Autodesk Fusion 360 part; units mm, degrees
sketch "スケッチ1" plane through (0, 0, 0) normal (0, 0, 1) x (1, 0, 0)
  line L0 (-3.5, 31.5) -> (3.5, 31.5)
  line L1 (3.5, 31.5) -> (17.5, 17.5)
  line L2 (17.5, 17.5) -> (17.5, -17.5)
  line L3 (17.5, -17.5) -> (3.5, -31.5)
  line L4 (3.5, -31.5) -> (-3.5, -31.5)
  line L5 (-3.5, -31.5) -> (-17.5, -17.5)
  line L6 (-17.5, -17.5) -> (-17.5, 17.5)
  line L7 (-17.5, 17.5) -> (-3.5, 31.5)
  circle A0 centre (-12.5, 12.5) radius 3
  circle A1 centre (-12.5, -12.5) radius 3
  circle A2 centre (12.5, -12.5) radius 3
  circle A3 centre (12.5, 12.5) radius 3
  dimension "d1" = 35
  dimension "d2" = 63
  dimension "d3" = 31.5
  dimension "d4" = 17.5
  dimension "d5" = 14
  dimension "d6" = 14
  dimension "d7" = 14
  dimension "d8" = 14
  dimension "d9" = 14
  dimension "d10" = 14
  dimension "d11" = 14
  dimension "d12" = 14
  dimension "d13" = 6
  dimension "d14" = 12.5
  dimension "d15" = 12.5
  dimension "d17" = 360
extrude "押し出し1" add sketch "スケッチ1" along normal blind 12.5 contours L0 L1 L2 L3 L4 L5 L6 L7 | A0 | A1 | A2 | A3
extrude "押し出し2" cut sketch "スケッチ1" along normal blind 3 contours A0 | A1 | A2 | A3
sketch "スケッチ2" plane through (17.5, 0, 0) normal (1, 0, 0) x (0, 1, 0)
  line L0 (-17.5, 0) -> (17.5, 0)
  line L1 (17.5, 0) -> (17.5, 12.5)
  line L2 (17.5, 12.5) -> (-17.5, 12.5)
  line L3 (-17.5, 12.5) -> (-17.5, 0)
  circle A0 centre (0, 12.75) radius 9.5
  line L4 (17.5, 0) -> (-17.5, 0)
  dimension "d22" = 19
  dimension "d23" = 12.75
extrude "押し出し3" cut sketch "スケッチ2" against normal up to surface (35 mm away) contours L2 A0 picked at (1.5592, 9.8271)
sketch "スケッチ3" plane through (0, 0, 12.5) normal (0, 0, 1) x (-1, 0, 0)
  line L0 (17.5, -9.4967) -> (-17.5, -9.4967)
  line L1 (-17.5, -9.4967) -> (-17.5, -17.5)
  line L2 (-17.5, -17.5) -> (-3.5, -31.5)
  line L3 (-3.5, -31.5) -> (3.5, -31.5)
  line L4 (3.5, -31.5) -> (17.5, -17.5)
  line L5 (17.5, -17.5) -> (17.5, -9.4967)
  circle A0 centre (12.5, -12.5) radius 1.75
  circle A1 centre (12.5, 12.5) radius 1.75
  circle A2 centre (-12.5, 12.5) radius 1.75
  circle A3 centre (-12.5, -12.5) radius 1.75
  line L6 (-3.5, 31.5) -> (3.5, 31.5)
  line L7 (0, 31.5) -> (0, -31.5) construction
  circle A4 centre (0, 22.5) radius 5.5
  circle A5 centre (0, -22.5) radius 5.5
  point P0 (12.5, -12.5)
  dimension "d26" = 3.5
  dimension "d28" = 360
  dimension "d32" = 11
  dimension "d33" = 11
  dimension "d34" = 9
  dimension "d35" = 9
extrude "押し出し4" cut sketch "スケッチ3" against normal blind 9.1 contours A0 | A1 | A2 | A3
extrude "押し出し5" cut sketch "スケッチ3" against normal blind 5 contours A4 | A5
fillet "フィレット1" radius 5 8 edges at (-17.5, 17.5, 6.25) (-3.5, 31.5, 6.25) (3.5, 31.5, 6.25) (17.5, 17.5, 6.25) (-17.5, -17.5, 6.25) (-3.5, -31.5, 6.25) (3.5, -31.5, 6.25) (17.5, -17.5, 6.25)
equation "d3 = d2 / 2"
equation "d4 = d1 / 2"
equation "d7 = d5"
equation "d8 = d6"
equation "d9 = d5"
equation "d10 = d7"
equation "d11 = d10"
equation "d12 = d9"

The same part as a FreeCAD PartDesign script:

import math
import FreeCAD as App
import Part
import Sketcher
Q = App.Units.Quantity


def edges_at(feature, points):
    """Names of the edges that pass closest to the given points."""
    edges = feature.Shape.Edges
    near = lambda p: min(range(len(edges)), key=lambda i: edges[i].distToShape(Part.Vertex(*p))[0])
    return sorted({f"Edge{near(p) + 1}" for p in points})


def add_polygon(sketch, points):
    """Adds a closed chain of lines whose ends are joined by coincident constraints."""
    first, n = sketch.GeometryCount, len(points)
    for a, b in zip(points, points[1:] + points[:1]):
        sketch.addGeometry(Part.LineSegment(App.Vector(*a, 0), App.Vector(*b, 0)), False)
    for i in range(n):
        sketch.addConstraint(Sketcher.Constraint("Coincident", first + i, 2, first + (i + 1) % n, 1))

doc = App.newDocument("Part")
params = doc.addObject("Spreadsheet::Sheet", "Params")
for row, (alias, value) in enumerate([
    ("sketch1_height", "35 mm"),
    ("pad1_length", "12.5 mm"),
    ("sketch2_diameter", "6 mm"),
    ("pocket1_length", "3 mm"),
    ("sketch3_radius", "9.5 mm"),
    ("pocket2_length", "35 mm"),
    ("sketch4_diameter", "3.5 mm"),
    ("pocket3_length", "9.1 mm"),
    ("sketch5_diameter", "11 mm"),
    ("pocket4_length", "5 mm"),
    ("fillet_radius", "5 mm"),
], start=1):
    params.set(f"A{row}", alias)
    params.set(f"B{row}", "=" + value)
    params.setAlias(f"B{row}", alias)

body = doc.addObject("PartDesign::Body", "Body")

# Sketch on XY plane
sketch1 = doc.addObject("Sketcher::SketchObject", "Sketch")
body.addObject(sketch1)
sketch1.AttachmentSupport = (doc.XY_Plane, [""])
sketch1.MapMode = "FlatFace"
add_polygon(sketch1, [(4, 32), (-4, 32), (-18, 18), (-18, -18), (-4, -32), (4, -32), (18, -18), (18, 18)])  # lines 0-7
sketch1.addConstraint([
    Sketcher.Constraint("Horizontal", 0),
    Sketcher.Constraint("Vertical", 2),
    Sketcher.Constraint("Horizontal", 4),
    Sketcher.Constraint("Vertical", 6),
    Sketcher.Constraint("Symmetric", 0, 2, 4, 2, -1, 1),
    Sketcher.Constraint("Symmetric", 1, 2, 5, 2, -1, 1),
    Sketcher.Constraint("Perpendicular", 1, 3),
    Sketcher.Constraint("Perpendicular", 5, 7),
    Sketcher.Constraint("Horizontal", 2, 2, 5, 2),
    Sketcher.Constraint("Horizontal", 1, 2, 6, 2),
    Sketcher.Constraint("Vertical", 0, 2, 3, 2),
    Sketcher.Constraint("DistanceY", 2, 2, 2, 1, Q("35 mm")),
    Sketcher.Constraint("DistanceX", 1, 2, 0, 2, Q("14 mm")),
    Sketcher.Constraint("DistanceX", 2, 2, 5, 2, Q("35 mm")),
])
sketch1.setExpression("Constraints[19]", "Params.sketch1_height")
pad1 = doc.addObject("PartDesign::Pad", "Pad")
body.addObject(pad1)
pad1.Profile = sketch1
pad1.setExpression("Length", "Params.pad1_length")

# Sketch on XY plane
sketch2 = doc.addObject("Sketcher::SketchObject", "Sketch001")
body.addObject(sketch2)
sketch2.AttachmentSupport = (doc.XY_Plane, [""])
sketch2.MapMode = "FlatFace"
sketch2.addGeometry([
    Part.Circle(App.Vector(-12.5, 12.5, 0), App.Vector(0, 0, 1), 3),
    Part.Circle(App.Vector(-12.5, -12.5, 0), App.Vector(0, 0, 1), 3),
    Part.Circle(App.Vector(12.5, -12.5, 0), App.Vector(0, 0, 1), 3),
    Part.Circle(App.Vector(12.5, 12.5, 0), App.Vector(0, 0, 1), 3),
], False)
sketch2.addConstraint([
    Sketcher.Constraint("Equal", 0, 1),
    Sketcher.Constraint("Equal", 1, 2),
    Sketcher.Constraint("Equal", 2, 3),
    Sketcher.Constraint("Symmetric", 0, 3, 2, 3, -1, 1),
    Sketcher.Constraint("Symmetric", 1, 3, 3, 3, -1, 1),
    Sketcher.Constraint("Symmetric", 1, 3, 2, 3, -2),
    Sketcher.Constraint("Diameter", 0, Q("6 mm")),
    Sketcher.Constraint("DistanceX", 0, 3, -1, 1, Q("12.5 mm")),
    Sketcher.Constraint("DistanceY", -1, 1, 0, 3, Q("12.5 mm")),
])
sketch2.setExpression("Constraints[6]", "Params.sketch2_diameter")
pocket1 = doc.addObject("PartDesign::Pocket", "Pocket")
body.addObject(pocket1)
pocket1.Profile = sketch2
pocket1.setExpression("Length", "Params.pocket1_length")
pocket1.Reversed = True

# Sketch on YZ plane
sketch3 = doc.addObject("Sketcher::SketchObject", "Sketch002")
body.addObject(sketch3)
sketch3.AttachmentSupport = (doc.YZ_Plane, [""])
sketch3.MapMode = "FlatFace"
sketch3.AttachmentOffset = App.Placement(App.Vector(0, 0, 17.5), App.Rotation())
sketch3.addGeometry([
    Part.LineSegment(App.Vector(9, 12, 0), App.Vector(-9, 12, 0)),
    Part.ArcOfCircle(Part.Circle(App.Vector(0, 13, 0), App.Vector(0, 0, 1), 10), math.radians(-178), math.radians(-2)),
], False)
sketch3.addConstraint([
    Sketcher.Constraint("Coincident", 0, 1, 1, 2),
    Sketcher.Constraint("Coincident", 1, 1, 0, 2),
    Sketcher.Constraint("Horizontal", 0),
    Sketcher.Constraint("PointOnObject", 1, 3, -2),
    Sketcher.Constraint("Radius", 1, Q("9.5 mm")),
    Sketcher.Constraint("DistanceY", -1, 1, 1, 3, Q("12.75 mm")),
    Sketcher.Constraint("DistanceY", -1, 1, 0, 1, Q("12.5 mm")),
])
sketch3.setExpression("Constraints[4]", "Params.sketch3_radius")
pocket2 = doc.addObject("PartDesign::Pocket", "Pocket001")
body.addObject(pocket2)
pocket2.Profile = sketch3
pocket2.setExpression("Length", "Params.pocket2_length")

# Sketch on XY plane
sketch4 = doc.addObject("Sketcher::SketchObject", "Sketch003")
body.addObject(sketch4)
sketch4.AttachmentSupport = (doc.XY_Plane, [""])
sketch4.MapMode = "FlatFace"
sketch4.AttachmentOffset = App.Placement(App.Vector(0, 0, 12.5), App.Rotation())
sketch4.addGeometry([
    Part.Circle(App.Vector(-12.5, 12.5, 0), App.Vector(0, 0, 1), 1.8),
    Part.Circle(App.Vector(-12.5, -12.5, 0), App.Vector(0, 0, 1), 1.8),
    Part.Circle(App.Vector(12.5, -12.5, 0), App.Vector(0, 0, 1), 1.8),
    Part.Circle(App.Vector(12.5, 12.5, 0), App.Vector(0, 0, 1), 1.8),
], False)
sketch4.addConstraint([
    Sketcher.Constraint("Equal", 0, 1),
    Sketcher.Constraint("Equal", 1, 2),
    Sketcher.Constraint("Equal", 2, 3),
    Sketcher.Constraint("Symmetric", 0, 3, 2, 3, -1, 1),
    Sketcher.Constraint("Symmetric", 1, 3, 3, 3, -1, 1),
    Sketcher.Constraint("Symmetric", 1, 3, 2, 3, -2),
    Sketcher.Constraint("Diameter", 0, Q("3.5 mm")),
    Sketcher.Constraint("DistanceY", 1, 3, 0, 3, Q("25 mm")),
    Sketcher.Constraint("DistanceX", 1, 3, 2, 3, Q("25 mm")),
])
sketch4.setExpression("Constraints[6]", "Params.sketch4_diameter")
pocket3 = doc.addObject("PartDesign::Pocket", "Pocket002")
body.addObject(pocket3)
pocket3.Profile = sketch4
pocket3.setExpression("Length", "Params.pocket3_length")

# Sketch on XY plane
sketch5 = doc.addObject("Sketcher::SketchObject", "Sketch004")
body.addObject(sketch5)
sketch5.AttachmentSupport = (doc.XY_Plane, [""])
sketch5.MapMode = "FlatFace"
sketch5.AttachmentOffset = App.Placement(App.Vector(0, 0, 12.5), App.Rotation())
sketch5.addGeometry([
    Part.Circle(App.Vector(0, -22, 0), App.Vector(0, 0, 1), 6),
    Part.Circle(App.Vector(0, 22, 0), App.Vector(0, 0, 1), 6),
], False)
sketch5.addConstraint([
    Sketcher.Constraint("Equal", 0, 1),
    Sketcher.Constraint("Symmetric", 0, 3, 1, 3, -1, 1),
    Sketcher.Constraint("PointOnObject", 0, 3, -2),
    Sketcher.Constraint("Diameter", 0, Q("11 mm")),
    Sketcher.Constraint("DistanceY", 0, 3, 1, 3, Q("45 mm")),
])
sketch5.setExpression("Constraints[3]", "Params.sketch5_diameter")
pocket4 = doc.addObject("PartDesign::Pocket", "Pocket003")
body.addObject(pocket4)
pocket4.Profile = sketch5
pocket4.setExpression("Length", "Params.pocket4_length")
doc.recompute()

fillet = doc.addObject("PartDesign::Fillet", "Fillet")
body.addObject(fillet)
fillet.Base = (pocket4, edges_at(pocket4, [
    (-17.5, 17.5, 6.25),
    (-3.5, 31.5, 6.25),
    (3.5, 31.5, 6.25),
    (17.5, 17.5, 6.25),
    (-17.5, -17.5, 6.25),
    (-3.5, -31.5, 6.25),
    (3.5, -31.5, 6.25),
    (17.5, -17.5, 6.25),
]))
fillet.setExpression("Radius", "Params.fillet_radius")

doc.recompute()
